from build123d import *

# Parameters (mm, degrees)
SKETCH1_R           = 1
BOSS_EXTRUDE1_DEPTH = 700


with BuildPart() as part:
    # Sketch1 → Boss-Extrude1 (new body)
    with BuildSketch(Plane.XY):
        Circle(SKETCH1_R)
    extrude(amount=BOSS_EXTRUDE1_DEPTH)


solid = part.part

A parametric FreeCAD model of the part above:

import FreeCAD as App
import Part
import Sketcher
Q = App.Units.Quantity

doc = App.newDocument("Part")
body = doc.addObject("PartDesign::Body", "Body")

sketch1 = body.newObject("Sketcher::SketchObject", "Sketch")
sketch1.AttachmentSupport = (doc.getObject("XY_Plane"), [""])
sketch1.MapMode = "FlatFace"
sketch1.addGeometry(Part.Circle(App.Vector(0, 0, 0), App.Vector(0, 0, 1), 1), False)
sketch1.addConstraint([
    Sketcher.Constraint("Coincident", 0, 3, -1, 1),
    Sketcher.Constraint("Diameter", 0, Q("2 mm")),
])
pad1 = body.newObject("PartDesign::Pad", "Pad")
pad1.Profile = sketch1
pad1.Length = 700

doc.recompute()
